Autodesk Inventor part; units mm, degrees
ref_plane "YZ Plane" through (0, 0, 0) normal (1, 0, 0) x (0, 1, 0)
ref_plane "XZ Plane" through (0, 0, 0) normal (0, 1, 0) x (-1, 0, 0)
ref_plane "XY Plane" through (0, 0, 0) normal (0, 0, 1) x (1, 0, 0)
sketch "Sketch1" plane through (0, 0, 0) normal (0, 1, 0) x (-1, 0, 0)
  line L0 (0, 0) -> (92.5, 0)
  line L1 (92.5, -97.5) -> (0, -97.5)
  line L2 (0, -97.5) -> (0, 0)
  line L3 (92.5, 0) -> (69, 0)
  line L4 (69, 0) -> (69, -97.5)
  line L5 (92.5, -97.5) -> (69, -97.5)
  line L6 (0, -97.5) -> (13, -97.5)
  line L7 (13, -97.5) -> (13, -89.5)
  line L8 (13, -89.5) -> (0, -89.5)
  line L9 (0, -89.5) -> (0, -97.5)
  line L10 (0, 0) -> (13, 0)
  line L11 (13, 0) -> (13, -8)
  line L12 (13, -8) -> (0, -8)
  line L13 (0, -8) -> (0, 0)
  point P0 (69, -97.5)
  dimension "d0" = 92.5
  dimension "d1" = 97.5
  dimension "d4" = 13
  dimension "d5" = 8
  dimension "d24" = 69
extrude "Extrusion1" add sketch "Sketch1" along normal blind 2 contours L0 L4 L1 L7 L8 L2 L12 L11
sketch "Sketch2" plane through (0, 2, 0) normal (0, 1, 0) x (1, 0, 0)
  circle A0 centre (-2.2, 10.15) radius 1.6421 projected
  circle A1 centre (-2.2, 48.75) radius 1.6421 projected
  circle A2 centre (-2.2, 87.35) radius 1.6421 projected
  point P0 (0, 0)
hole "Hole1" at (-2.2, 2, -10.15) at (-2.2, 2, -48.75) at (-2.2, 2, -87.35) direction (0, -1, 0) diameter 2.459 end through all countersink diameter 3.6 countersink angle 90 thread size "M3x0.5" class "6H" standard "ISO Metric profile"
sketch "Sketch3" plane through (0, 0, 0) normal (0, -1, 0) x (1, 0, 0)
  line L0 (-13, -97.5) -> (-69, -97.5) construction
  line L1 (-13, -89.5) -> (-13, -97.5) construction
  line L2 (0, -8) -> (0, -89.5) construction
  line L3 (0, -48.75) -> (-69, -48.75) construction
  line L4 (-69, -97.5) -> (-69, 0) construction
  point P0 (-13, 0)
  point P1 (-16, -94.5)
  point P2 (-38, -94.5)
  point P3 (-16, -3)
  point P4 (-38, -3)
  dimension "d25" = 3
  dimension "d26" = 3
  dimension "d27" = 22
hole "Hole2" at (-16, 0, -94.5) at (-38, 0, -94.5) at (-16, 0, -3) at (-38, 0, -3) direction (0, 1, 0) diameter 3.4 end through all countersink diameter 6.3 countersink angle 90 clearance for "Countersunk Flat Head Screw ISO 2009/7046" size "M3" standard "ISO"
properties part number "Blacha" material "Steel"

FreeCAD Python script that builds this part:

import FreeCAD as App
import Part
import Sketcher

V = App.Vector

doc = App.newDocument("Part")
body = doc.addObject("PartDesign::Body", "Body")

# Sketch on XZ plane
sketch1 = body.newObject("Sketcher::SketchObject", "Sketch")
sketch1.AttachmentSupport = (doc.getObject("XZ_Plane"), [""])
sketch1.MapMode = "FlatFace"
sketch1.addGeometry([
    Part.LineSegment(V(-69, 0, 0), V(-13, 0, 0)),  # 0
    Part.LineSegment(V(-13, 0, 0), V(-13, -8, 0)),  # 1
    Part.LineSegment(V(-13, -8, 0), V(0, -8, 0)),  # 2
    Part.LineSegment(V(0, -8, 0), V(0, -90, 0)),  # 3
    Part.LineSegment(V(0, -90, 0), V(-13, -90, 0)),  # 4
    Part.LineSegment(V(-13, -90, 0), V(-13, -98, 0)),  # 5
    Part.LineSegment(V(-13, -98, 0), V(-69, -98, 0)),  # 6
    Part.LineSegment(V(-69, -98, 0), V(-69, 0, 0)),  # 7
], False)
sketch1.addConstraint([
    Sketcher.Constraint("Coincident", 0, 2, 1, 1),
    Sketcher.Constraint("Coincident", 1, 2, 2, 1),
    Sketcher.Constraint("Coincident", 2, 2, 3, 1),
    Sketcher.Constraint("Coincident", 3, 2, 4, 1),
    Sketcher.Constraint("Coincident", 4, 2, 5, 1),
    Sketcher.Constraint("Coincident", 5, 2, 6, 1),
    Sketcher.Constraint("Coincident", 6, 2, 7, 1),
    Sketcher.Constraint("Coincident", 7, 2, 0, 1),
    Sketcher.Constraint("Horizontal", 0),
    Sketcher.Constraint("Vertical", 1),
    Sketcher.Constraint("Horizontal", 2),
    Sketcher.Constraint("Vertical", 3),
    Sketcher.Constraint("Horizontal", 4),
    Sketcher.Constraint("Vertical", 5),
    Sketcher.Constraint("Horizontal", 6),
    Sketcher.Constraint("Vertical", 7),
    Sketcher.Constraint("PointOnObject", 0, 2, -1),
    Sketcher.Constraint("PointOnObject", 2, 2, -2),
    Sketcher.Constraint("Vertical", 1, 2, 4, 2),
    Sketcher.Constraint("Equal", 1, 5),
    Sketcher.Constraint("DistanceX", 2, 1, 2, 2, 13.0),
    Sketcher.Constraint("DistanceY", 1, 2, 1, 1, 8.0),
    Sketcher.Constraint("DistanceY", 7, 1, 7, 2, 97.5),
    Sketcher.Constraint("DistanceX", 6, 2, -1, 1, 69.0),
])
pad1 = body.newObject("PartDesign::Pad", "Pad")
pad1.Profile = sketch1
pad1.Length = 2
pad1.Reversed = True

# Sketch on XZ plane
sketch2 = body.newObject("Sketcher::SketchObject", "Sketch001")
sketch2.AttachmentSupport = (doc.getObject("XZ_Plane"), [""])
sketch2.MapMode = "FlatFace"
sketch2.AttachmentOffset = App.Placement(V(0, 0, -2), App.Rotation())
sketch2.addGeometry([
    Part.Circle(V(-2.2, -10.2, 0), V(0, 0, 1), 1.2),
    Part.Circle(V(-2.2, -48.8, 0), V(0, 0, 1), 1.2),
    Part.Circle(V(-2.2, -87.3, 0), V(0, 0, 1), 1.2),
], False)
sketch2.addConstraint([
    Sketcher.Constraint("Equal", 0, 1),
    Sketcher.Constraint("Equal", 1, 2),
    Sketcher.Constraint("Vertical", 0, 3, 1, 3),
    Sketcher.Constraint("Vertical", 1, 3, 2, 3),
    Sketcher.Constraint("Diameter", 0, 2.459),
    Sketcher.Constraint("DistanceX", 0, 3, -1, 1, 2.2),
    Sketcher.Constraint("DistanceY", 1, 3, 0, 3, 38.6),
    Sketcher.Constraint("DistanceY", 2, 3, 1, 3, 38.6),
    Sketcher.Constraint("DistanceY", 0, 3, -1, 1, 10.15),
])
doc.recompute()
hole = body.newObject("PartDesign::Hole", "Hole")
hole.Profile = sketch2
hole.ThreadType = "None"
hole.Diameter = 2.459
hole.DepthType = "ThroughAll"
hole.HoleCutType = "Countersink"
hole.HoleCutDiameter = 3.6
hole.HoleCutCountersinkAngle = 90
hole.Reversed = True

# Sketch on XZ plane
sketch3 = body.newObject("Sketcher::SketchObject", "Sketch002")
sketch3.AttachmentSupport = (doc.getObject("XZ_Plane"), [""])
sketch3.MapMode = "FlatFace"
sketch3.addGeometry([
    Part.Circle(V(-16, -94.5, 0), V(0, 0, 1), 1.7),
    Part.Circle(V(-38, -94.5, 0), V(0, 0, 1), 1.7),
    Part.Circle(V(-16, -3, 0), V(0, 0, 1), 1.7),
    Part.Circle(V(-38, -3, 0), V(0, 0, 1), 1.7),
], False)
sketch3.addConstraint([
    Sketcher.Constraint("Equal", 0, 1),
    Sketcher.Constraint("Equal", 1, 2),
    Sketcher.Constraint("Equal", 2, 3),
    Sketcher.Constraint("Horizontal", 0, 3, 1, 3),
    Sketcher.Constraint("Horizontal", 2, 3, 3, 3),
    Sketcher.Constraint("Vertical", 0, 3, 2, 3),
    Sketcher.Constraint("Vertical", 1, 3, 3, 3),
    Sketcher.Constraint("Diameter", 0, 3.4),
    Sketcher.Constraint("DistanceX", 0, 3, -1, 1, 16.0),
    Sketcher.Constraint("DistanceX", 1, 3, -1, 1, 38.0),
    Sketcher.Constraint("DistanceY", 2, 3, -1, 1, 3.0),
    Sketcher.Constraint("DistanceY", 0, 3, -1, 1, 94.5),
])
doc.recompute()
hole2 = body.newObject("PartDesign::Hole", "Hole001")
hole2.Profile = sketch3
hole2.ThreadType = "None"
hole2.Diameter = 3.4
hole2.DepthType = "ThroughAll"
hole2.HoleCutType = "Countersink"
hole2.HoleCutDiameter = 6.3
hole2.HoleCutCountersinkAngle = 90

doc.recompute()
